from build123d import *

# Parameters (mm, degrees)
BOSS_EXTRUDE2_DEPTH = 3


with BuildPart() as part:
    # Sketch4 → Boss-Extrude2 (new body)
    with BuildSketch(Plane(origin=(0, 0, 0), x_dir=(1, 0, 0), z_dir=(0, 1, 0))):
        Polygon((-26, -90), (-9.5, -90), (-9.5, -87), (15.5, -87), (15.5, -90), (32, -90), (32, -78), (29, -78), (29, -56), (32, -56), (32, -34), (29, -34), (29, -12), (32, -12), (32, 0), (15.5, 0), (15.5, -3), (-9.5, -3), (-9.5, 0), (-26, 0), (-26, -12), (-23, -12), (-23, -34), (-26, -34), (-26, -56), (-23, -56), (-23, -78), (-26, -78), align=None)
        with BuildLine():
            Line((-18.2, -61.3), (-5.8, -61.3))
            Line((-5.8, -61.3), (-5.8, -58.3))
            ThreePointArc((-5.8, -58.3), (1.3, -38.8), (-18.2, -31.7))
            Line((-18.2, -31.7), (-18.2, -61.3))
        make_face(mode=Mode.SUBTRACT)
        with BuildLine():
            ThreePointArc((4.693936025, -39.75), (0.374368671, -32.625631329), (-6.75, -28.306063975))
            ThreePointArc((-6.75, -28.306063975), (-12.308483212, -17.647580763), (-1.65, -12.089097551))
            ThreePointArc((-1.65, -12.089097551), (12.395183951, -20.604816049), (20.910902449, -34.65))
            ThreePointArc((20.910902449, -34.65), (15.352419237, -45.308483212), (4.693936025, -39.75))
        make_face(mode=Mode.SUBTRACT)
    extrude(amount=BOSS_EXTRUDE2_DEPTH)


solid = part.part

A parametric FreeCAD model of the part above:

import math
import FreeCAD as App
import Part
import Sketcher

V = App.Vector
Q = App.Units.Quantity


def add_polygon(sketch, points):
    """Adds a closed chain of lines whose ends are joined by coincident constraints."""
    first, n = sketch.GeometryCount, len(points)
    for a, b in zip(points, points[1:] + points[:1]):
        sketch.addGeometry(Part.LineSegment(App.Vector(*a, 0), App.Vector(*b, 0)), False)
    for i in range(n):
        sketch.addConstraint(Sketcher.Constraint("Coincident", first + i, 2, first + (i + 1) % n, 1))

doc = App.newDocument("Part")
body = doc.addObject("PartDesign::Body", "Body")

# Sketch on XZ plane
sketch1 = doc.addObject("Sketcher::SketchObject", "Sketch")
body.addObject(sketch1)
sketch1.AttachmentSupport = (doc.XZ_Plane, [""])
sketch1.MapMode = "FlatFace"
add_polygon(sketch1, [(-26, 90), (-9.5, 90), (-9.5, 87), (15.5, 87), (15.5, 90), (32, 90), (32, 78), (29, 78), (29, 56), (32, 56), (32, 34), (29, 34), (29, 12), (32, 12), (32, 0), (15.5, 0), (15.5, 3), (-9.5, 3), (-9.5, 0), (-26, 0), (-26, 12), (-23, 12), (-23, 34), (-26, 34), (-26, 56), (-23, 56), (-23, 78), (-26, 78)])  # lines 0-27
sketch1.addGeometry(Part.LineSegment(V(-5.8, 61.3, 0), V(-18.2, 61.3, 0)), False)  # 28
sketch1.addGeometry(Part.LineSegment(V(-18.2, 61.3, 0), V(-18.2, 31.7, 0)), False)  # 29
sketch1.addGeometry(Part.ArcOfCircle(Part.Circle(V(-12, 45, 0), V(0, 0, 1), 14.7), math.radians(-115), math.radians(65)), False)  # 30
sketch1.addGeometry(Part.LineSegment(V(-5.8, 58.3, 0), V(-5.8, 61.3, 0)), False)  # 31
sketch1.addGeometry(Part.ArcOfCircle(Part.Circle(V(12.8, 37.2, 0), V(0, 0, 1), 8.5), math.radians(-17), math.radians(163)), False)  # 32
sketch1.addGeometry(Part.ArcOfCircle(Part.Circle(V(-12, 45, 0), V(0, 0, 1), 17.5), math.radians(-73), math.radians(-17)), False)  # 33
sketch1.addGeometry(Part.ArcOfCircle(Part.Circle(V(-4.2, 20.2, 0), V(0, 0, 1), 8.5), math.radians(107), math.radians(287)), False)  # 34
sketch1.addGeometry(Part.ArcOfCircle(Part.Circle(V(-12, 45, 0), V(0, 0, 1), 34.5), math.radians(-73), math.radians(-17)), False)  # 35
sketch1.addConstraint([
    Sketcher.Constraint("Coincident", 28, 2, 29, 1),
    Sketcher.Constraint("Coincident", 29, 2, 30, 1),
    Sketcher.Constraint("Coincident", 30, 2, 31, 1),
    Sketcher.Constraint("Coincident", 31, 2, 28, 1),
    Sketcher.Constraint("Tangent", 32, 2, 33, 2),
    Sketcher.Constraint("Tangent", 33, 1, 34, 1),
    Sketcher.Constraint("Tangent", 34, 2, 35, 1),
    Sketcher.Constraint("Tangent", 35, 2, 32, 1),
    Sketcher.Constraint("Horizontal", 0),
    Sketcher.Constraint("Vertical", 1),
    Sketcher.Constraint("Horizontal", 2),
    Sketcher.Constraint("Vertical", 3),
    Sketcher.Constraint("Horizontal", 4),
    Sketcher.Constraint("Vertical", 5),
    Sketcher.Constraint("Horizontal", 6),
    Sketcher.Constraint("Vertical", 7),
    Sketcher.Constraint("Horizontal", 8),
    Sketcher.Constraint("Vertical", 9),
    Sketcher.Constraint("Horizontal", 10),
    Sketcher.Constraint("Vertical", 11),
    Sketcher.Constraint("Horizontal", 12),
    Sketcher.Constraint("Vertical", 13),
    Sketcher.Constraint("Horizontal", 14),
    Sketcher.Constraint("Vertical", 15),
    Sketcher.Constraint("Horizontal", 16),
    Sketcher.Constraint("Vertical", 17),
    Sketcher.Constraint("Horizontal", 18),
    Sketcher.Constraint("Vertical", 19),
    Sketcher.Constraint("Horizontal", 20),
    Sketcher.Constraint("Vertical", 21),
    Sketcher.Constraint("Horizontal", 22),
    Sketcher.Constraint("Vertical", 23),
    Sketcher.Constraint("Horizontal", 24),
    Sketcher.Constraint("Vertical", 25),
    Sketcher.Constraint("Horizontal", 26),
    Sketcher.Constraint("Vertical", 27),
    Sketcher.Constraint("Horizontal", 28),
    Sketcher.Constraint("Vertical", 29),
    Sketcher.Constraint("Vertical", 31),
    Sketcher.Constraint("Coincident", 33, 3, 30, 3),
    Sketcher.Constraint("Coincident", 35, 3, 30, 3),
    Sketcher.Constraint("PointOnObject", 13, 2, -1),
    Sketcher.Constraint("PointOnObject", 17, 2, -1),
    Sketcher.Constraint("Horizontal", 0, 2, 3, 2),
    Sketcher.Constraint("Horizontal", 12, 2, 19, 2),
    Sketcher.Constraint("Horizontal", 10, 2, 21, 2),
    Sketcher.Constraint("Horizontal", 8, 2, 23, 2),
    Sketcher.Constraint("Horizontal", 6, 2, 25, 2),
    Sketcher.Constraint("Vertical", 5, 2, 8, 2),
    Sketcher.Constraint("Vertical", 7, 2, 10, 2),
    Sketcher.Constraint("Vertical", 9, 2, 12, 2),
    Sketcher.Constraint("Vertical", 3, 2, 14, 2),
    Sketcher.Constraint("Vertical", 1, 2, 16, 2),
    Sketcher.Constraint("Vertical", 19, 2, 22, 2),
    Sketcher.Constraint("Vertical", 21, 2, 24, 2),
    Sketcher.Constraint("Vertical", 23, 2, 26, 2),
    Sketcher.Constraint("Equal", 0, 4),
    Sketcher.Constraint("Equal", 12, 20),
    Sketcher.Constraint("Equal", 26, 1),
    Sketcher.Constraint("Equal", 7, 9),
    Sketcher.Constraint("Equal", 9, 11),
    Sketcher.Constraint("Equal", 5, 13),
    Sketcher.Constraint("Equal", 3, 15),
    Sketcher.Constraint("Equal", 17, 31),
    Sketcher.Constraint("Radius", 32, Q("8.5 mm")),
    Sketcher.Constraint("Radius", 33, Q("17.5 mm")),
    Sketcher.Constraint("DistanceX", 2, 1, 2, 2, Q("25 mm")),
    Sketcher.Constraint("DistanceX", 6, 2, 6, 1, Q("3 mm")),
    Sketcher.Constraint("DistanceY", 5, 2, 5, 1, Q("12 mm")),
    Sketcher.Constraint("DistanceY", 7, 2, 7, 1, Q("22 mm")),
    Sketcher.Constraint("DistanceX", 0, 1, 0, 2, Q("16.5 mm")),
    Sketcher.Constraint("DistanceX", 28, 2, 28, 1, Q("12.4 mm")),
    Sketcher.Constraint("DistanceY", 29, 2, 29, 1, Q("29.6 mm")),
    Sketcher.Constraint("DistanceX", 30, 3, -1, 1, Q("12 mm")),
    Sketcher.Constraint("DistanceY", -1, 1, 30, 3, Q("45 mm")),
    Sketcher.Constraint("DistanceX", -1, 1, 4, 2, Q("32 mm")),
    Sketcher.Constraint("DistanceY", -1, 1, 32, 3, Q("37.2 mm")),
    Sketcher.Constraint("DistanceX", 34, 3, -1, 1, Q("4.2 mm")),
    Sketcher.Constraint("DistanceX", 28, 2, -1, 1, Q("18.2 mm")),
])
pad1 = doc.addObject("PartDesign::Pad", "Pad")
body.addObject(pad1)
pad1.Profile = sketch1
pad1.Length = 3
pad1.Reversed = True

doc.recompute()
